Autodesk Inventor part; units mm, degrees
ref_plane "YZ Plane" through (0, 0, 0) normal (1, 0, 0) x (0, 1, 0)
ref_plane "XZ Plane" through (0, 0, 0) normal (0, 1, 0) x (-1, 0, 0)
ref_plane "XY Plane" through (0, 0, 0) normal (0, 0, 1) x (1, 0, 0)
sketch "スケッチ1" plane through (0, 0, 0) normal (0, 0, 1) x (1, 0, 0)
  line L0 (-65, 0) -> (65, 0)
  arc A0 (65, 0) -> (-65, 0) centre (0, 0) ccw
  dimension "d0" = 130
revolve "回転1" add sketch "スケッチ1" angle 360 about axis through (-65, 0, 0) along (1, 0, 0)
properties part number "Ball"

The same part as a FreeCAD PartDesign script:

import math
import FreeCAD as App
import Part
import Sketcher

doc = App.newDocument("Part")
body = doc.addObject("PartDesign::Body", "Body")

# Sketch on XY plane
sketch1 = doc.addObject("Sketcher::SketchObject", "Sketch")
body.addObject(sketch1)
sketch1.AttachmentSupport = (doc.XY_Plane, [""])
sketch1.MapMode = "FlatFace"
sketch1.addGeometry(Part.ArcOfCircle(Part.Circle(App.Vector(0, 0, 0), App.Vector(0, 0, 1), 65), math.radians(0), math.radians(180)), False)
sketch1.addGeometry(Part.LineSegment(App.Vector(-65, 0, 0), App.Vector(65, 0, 0)), False)
sketch1.addConstraint(Sketcher.Constraint("Coincident", 0, 1, 1, 2))
sketch1.addConstraint(Sketcher.Constraint("Coincident", 1, 1, 0, 2))
sketch1.addConstraint(Sketcher.Constraint("Horizontal", 1))
sketch1.addConstraint(Sketcher.Constraint("Coincident", 0, 3, -1, 1))
sketch1.addConstraint(Sketcher.Constraint("PointOnObject", 0, 1, -1))
sketch1.addConstraint(Sketcher.Constraint("Radius", 0, 65.0))
revolution = doc.addObject("PartDesign::Revolution", "Revolution")
body.addObject(revolution)
revolution.Profile = sketch1
revolution.ReferenceAxis = (sketch1, ["H_Axis"])
revolution.Angle = 360

doc.recompute()
